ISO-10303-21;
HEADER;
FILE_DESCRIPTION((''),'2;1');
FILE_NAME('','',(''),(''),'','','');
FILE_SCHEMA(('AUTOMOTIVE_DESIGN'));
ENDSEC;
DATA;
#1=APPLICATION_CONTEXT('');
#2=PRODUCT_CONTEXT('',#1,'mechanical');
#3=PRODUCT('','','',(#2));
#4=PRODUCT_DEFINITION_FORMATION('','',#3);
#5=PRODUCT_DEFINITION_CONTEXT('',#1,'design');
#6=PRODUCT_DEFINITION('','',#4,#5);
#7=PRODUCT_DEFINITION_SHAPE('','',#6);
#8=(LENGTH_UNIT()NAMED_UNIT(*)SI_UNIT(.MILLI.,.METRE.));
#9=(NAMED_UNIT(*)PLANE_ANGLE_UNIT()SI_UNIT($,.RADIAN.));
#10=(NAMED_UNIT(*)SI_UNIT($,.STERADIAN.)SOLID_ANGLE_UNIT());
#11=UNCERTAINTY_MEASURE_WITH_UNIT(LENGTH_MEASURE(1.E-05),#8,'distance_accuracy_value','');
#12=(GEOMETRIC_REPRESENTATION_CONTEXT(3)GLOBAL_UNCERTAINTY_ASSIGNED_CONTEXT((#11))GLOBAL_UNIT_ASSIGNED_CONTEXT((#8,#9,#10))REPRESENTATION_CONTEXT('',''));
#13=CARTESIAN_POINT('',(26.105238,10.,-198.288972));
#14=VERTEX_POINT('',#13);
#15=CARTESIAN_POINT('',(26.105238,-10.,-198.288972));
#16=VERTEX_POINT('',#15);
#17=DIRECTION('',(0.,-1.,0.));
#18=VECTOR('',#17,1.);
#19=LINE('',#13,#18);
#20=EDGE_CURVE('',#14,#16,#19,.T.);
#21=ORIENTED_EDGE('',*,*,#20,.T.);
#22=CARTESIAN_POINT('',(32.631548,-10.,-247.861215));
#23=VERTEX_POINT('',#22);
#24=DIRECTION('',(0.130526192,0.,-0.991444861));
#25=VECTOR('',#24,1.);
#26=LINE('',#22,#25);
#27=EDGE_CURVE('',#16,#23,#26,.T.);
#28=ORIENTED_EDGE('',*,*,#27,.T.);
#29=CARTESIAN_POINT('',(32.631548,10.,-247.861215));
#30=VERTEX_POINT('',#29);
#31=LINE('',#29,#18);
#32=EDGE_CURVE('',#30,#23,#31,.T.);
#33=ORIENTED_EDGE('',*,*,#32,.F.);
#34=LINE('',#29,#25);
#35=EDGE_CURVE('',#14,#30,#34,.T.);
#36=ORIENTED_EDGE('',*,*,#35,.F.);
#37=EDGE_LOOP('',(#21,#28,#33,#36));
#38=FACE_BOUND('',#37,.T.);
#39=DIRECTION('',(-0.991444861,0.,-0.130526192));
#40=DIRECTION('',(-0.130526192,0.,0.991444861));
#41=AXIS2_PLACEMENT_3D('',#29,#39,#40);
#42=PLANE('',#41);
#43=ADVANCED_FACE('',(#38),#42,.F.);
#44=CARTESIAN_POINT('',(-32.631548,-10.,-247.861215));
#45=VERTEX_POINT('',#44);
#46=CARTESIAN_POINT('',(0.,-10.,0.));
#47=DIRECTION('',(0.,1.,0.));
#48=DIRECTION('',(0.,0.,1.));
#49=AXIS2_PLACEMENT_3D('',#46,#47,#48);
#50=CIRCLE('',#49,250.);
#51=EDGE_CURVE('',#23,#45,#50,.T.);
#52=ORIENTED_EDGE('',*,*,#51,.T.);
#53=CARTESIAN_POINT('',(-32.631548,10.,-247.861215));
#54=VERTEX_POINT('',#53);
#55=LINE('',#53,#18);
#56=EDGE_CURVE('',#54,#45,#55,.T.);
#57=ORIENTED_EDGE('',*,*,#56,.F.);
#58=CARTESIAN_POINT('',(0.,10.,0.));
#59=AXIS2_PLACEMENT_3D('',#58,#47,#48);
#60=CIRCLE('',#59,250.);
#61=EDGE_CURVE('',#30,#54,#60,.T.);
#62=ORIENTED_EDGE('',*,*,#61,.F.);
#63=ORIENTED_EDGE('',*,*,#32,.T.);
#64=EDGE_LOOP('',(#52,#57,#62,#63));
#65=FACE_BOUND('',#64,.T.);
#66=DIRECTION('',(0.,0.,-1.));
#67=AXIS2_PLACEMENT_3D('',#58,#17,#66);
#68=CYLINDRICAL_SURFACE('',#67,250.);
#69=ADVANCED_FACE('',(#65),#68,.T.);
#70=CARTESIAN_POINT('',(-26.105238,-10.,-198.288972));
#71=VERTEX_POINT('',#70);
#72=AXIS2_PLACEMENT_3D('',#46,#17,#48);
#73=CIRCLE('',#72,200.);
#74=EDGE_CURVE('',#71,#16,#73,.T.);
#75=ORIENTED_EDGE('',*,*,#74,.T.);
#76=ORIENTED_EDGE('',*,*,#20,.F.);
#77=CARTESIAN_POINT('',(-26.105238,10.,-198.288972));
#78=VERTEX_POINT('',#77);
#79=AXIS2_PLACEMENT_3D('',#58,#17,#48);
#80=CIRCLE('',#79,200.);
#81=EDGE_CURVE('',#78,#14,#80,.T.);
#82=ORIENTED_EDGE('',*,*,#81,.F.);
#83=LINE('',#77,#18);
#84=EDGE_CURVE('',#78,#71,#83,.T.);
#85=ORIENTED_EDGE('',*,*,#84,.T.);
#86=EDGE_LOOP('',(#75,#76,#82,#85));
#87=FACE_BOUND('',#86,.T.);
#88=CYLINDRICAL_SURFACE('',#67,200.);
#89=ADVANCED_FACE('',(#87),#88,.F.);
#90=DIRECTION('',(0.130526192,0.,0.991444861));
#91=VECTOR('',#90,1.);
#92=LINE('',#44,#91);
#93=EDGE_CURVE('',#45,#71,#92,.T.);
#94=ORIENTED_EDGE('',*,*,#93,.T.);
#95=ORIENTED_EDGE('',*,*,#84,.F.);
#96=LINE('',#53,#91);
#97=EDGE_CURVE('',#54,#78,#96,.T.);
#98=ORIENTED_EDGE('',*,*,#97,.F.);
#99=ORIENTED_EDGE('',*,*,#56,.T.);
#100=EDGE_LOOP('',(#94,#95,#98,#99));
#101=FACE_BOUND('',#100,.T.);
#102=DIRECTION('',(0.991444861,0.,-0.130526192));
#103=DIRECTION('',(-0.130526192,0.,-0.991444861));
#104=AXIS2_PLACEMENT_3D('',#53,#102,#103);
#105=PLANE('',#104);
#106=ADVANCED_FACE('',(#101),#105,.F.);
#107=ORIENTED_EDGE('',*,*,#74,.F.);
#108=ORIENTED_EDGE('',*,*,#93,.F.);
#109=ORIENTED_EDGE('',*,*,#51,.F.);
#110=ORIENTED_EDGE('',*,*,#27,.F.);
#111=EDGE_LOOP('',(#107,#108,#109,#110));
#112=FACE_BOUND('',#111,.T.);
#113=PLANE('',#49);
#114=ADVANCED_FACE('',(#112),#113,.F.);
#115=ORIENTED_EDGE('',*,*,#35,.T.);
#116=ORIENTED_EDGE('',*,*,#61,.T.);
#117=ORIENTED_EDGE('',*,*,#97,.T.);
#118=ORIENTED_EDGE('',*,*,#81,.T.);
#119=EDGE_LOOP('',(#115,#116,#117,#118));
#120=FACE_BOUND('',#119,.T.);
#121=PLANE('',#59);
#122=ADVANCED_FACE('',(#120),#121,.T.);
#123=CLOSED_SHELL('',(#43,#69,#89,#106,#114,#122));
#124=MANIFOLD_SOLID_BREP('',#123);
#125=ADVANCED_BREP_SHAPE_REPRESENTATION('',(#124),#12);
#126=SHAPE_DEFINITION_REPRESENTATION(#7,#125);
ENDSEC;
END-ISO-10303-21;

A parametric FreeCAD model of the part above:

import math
import FreeCAD as App
import Part
import Sketcher
from FreeCAD import Vector
Q = App.Units.Quantity

doc = App.newDocument("Part")
params = doc.addObject("Spreadsheet::Sheet", "Params")
for row, (alias, value) in enumerate([
    ("sketch1_radius", "250 mm"),
    ("sketch1_radius2", "200 mm"),
    ("pad1_length", "20 mm"),
], start=1):
    params.set(f"A{row}", alias)
    params.set(f"B{row}", "=" + value)
    params.setAlias(f"B{row}", alias)

body = doc.addObject("PartDesign::Body", "Body")

# Sketch on XZ plane
sketch1 = body.newObject("Sketcher::SketchObject", "Sketch")
sketch1.AttachmentSupport = (doc.getObject("XZ_Plane"), [""])
sketch1.MapMode = "FlatFace"
sketch1.addGeometry([
    Part.LineSegment(Vector(26, -198, 0), Vector(33, -248, 0)),
    Part.ArcOfCircle(Part.Circle(Vector(0, 0, 0), Vector(0, 0, 1), 250), math.radians(-97.5), math.radians(-82.5)),
    Part.LineSegment(Vector(-33, -248, 0), Vector(-26, -198, 0)),
    Part.ArcOfCircle(Part.Circle(Vector(0, 0, 0), Vector(0, 0, 1), 200), math.radians(-97.5), math.radians(-82.5)),
], False)
sketch1.addConstraint([
    Sketcher.Constraint("Coincident", 0, 2, 1, 2),
    Sketcher.Constraint("Coincident", 1, 1, 2, 1),
    Sketcher.Constraint("Coincident", 2, 2, 3, 1),
    Sketcher.Constraint("Coincident", 3, 2, 0, 1),
    Sketcher.Constraint("Coincident", 1, 3, -1, 1),
    Sketcher.Constraint("Coincident", 3, 3, -1, 1),
    Sketcher.Constraint("Horizontal", 0, 2, 1, 1),
    Sketcher.Constraint("Horizontal", 2, 2, 3, 2),
    Sketcher.Constraint("Radius", 1, Q("250 mm")),
    Sketcher.Constraint("Radius", 3, Q("200 mm")),
    Sketcher.Constraint("Angle", 0, Q("-82.5 deg")),
    Sketcher.Constraint("DistanceX", -1, 1, 0, 2, Q("32.631548 mm")),
])
sketch1.setExpression("Constraints[8]", "Params.sketch1_radius")
sketch1.setExpression("Constraints[9]", "Params.sketch1_radius2")
pad1 = body.newObject("PartDesign::Pad", "Pad")
pad1.Profile = sketch1
pad1.setExpression("Length", "Params.pad1_length")
pad1.Midplane = True

doc.recompute()
